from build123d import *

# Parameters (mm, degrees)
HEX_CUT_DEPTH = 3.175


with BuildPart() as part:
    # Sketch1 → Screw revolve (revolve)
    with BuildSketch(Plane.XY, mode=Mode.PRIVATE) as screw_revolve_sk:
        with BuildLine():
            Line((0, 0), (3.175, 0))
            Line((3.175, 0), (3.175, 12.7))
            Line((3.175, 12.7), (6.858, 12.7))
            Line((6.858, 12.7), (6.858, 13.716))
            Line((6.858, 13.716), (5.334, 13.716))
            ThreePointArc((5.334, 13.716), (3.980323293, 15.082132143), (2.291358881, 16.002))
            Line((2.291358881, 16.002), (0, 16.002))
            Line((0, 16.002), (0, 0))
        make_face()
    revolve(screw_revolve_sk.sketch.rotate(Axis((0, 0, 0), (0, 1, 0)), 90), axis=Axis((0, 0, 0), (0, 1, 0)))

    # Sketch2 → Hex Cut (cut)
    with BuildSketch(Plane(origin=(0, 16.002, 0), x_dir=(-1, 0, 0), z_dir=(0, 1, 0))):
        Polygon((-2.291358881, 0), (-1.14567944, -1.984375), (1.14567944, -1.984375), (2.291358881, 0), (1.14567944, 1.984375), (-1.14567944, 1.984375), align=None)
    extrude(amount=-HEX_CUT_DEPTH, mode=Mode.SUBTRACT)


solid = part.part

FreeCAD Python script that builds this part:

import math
import FreeCAD as App
import Part
import Sketcher

V = App.Vector
Q = App.Units.Quantity

doc = App.newDocument("Part")
body = doc.addObject("PartDesign::Body", "Body")

# Sketch on XY plane
sketch1 = body.newObject("Sketcher::SketchObject", "Sketch")
sketch1.AttachmentSupport = (doc.getObject("XY_Plane"), [""])
sketch1.MapMode = "FlatFace"
sketch1.addGeometry(Part.LineSegment(V(0, 0, 0), V(3.175, 0, 0)), False)
sketch1.addGeometry(Part.LineSegment(V(3.175, 0, 0), V(3.175, 12.7, 0)), False)
sketch1.addGeometry(Part.LineSegment(V(3.175, 12.7, 0), V(6.858, 12.7, 0)), False)
sketch1.addGeometry(Part.LineSegment(V(6.858, 12.7, 0), V(6.858, 13.716, 0)), False)
sketch1.addGeometry(Part.LineSegment(V(6.858, 13.716, 0), V(5.334, 13.716, 0)), False)
sketch1.addGeometry(Part.ArcOfCircle(Part.Circle(V(0, 9.784365, 0), V(0, 0, 1), 6.62641), math.radians(36.393534), math.radians(69.769856)), False)
sketch1.addGeometry(Part.LineSegment(V(2.291359, 16.002, 0), V(0, 16.002, 0)), False)
sketch1.addGeometry(Part.LineSegment(V(0, 16.002, 0), V(0, 0, 0)), False)
sketch1.addConstraint(Sketcher.Constraint("Coincident", 0, 2, 1, 1))
sketch1.addConstraint(Sketcher.Constraint("Coincident", 1, 2, 2, 1))
sketch1.addConstraint(Sketcher.Constraint("Coincident", 2, 2, 3, 1))
sketch1.addConstraint(Sketcher.Constraint("Coincident", 3, 2, 4, 1))
sketch1.addConstraint(Sketcher.Constraint("Coincident", 4, 2, 5, 1))
sketch1.addConstraint(Sketcher.Constraint("Coincident", 5, 2, 6, 1))
sketch1.addConstraint(Sketcher.Constraint("Coincident", 6, 2, 7, 1))
sketch1.addConstraint(Sketcher.Constraint("Coincident", 7, 2, 0, 1))
sketch1.addConstraint(Sketcher.Constraint("Horizontal", 0))
sketch1.addConstraint(Sketcher.Constraint("Vertical", 1))
sketch1.addConstraint(Sketcher.Constraint("Horizontal", 2))
sketch1.addConstraint(Sketcher.Constraint("Vertical", 3))
sketch1.addConstraint(Sketcher.Constraint("Horizontal", 4))
sketch1.addConstraint(Sketcher.Constraint("Horizontal", 6))
sketch1.addConstraint(Sketcher.Constraint("Vertical", 7))
sketch1.addConstraint(Sketcher.Constraint("Coincident", 7, 2, -1, 1))
sketch1.addConstraint(Sketcher.Constraint("PointOnObject", 5, 3, -2))
sketch1.addConstraint(Sketcher.Constraint("DistanceY", 1, 1, 1, 2, Q("0.5 in")))
sketch1.addConstraint(Sketcher.Constraint("DistanceX", 4, 2, 4, 1, Q("0.06 in")))
sketch1.addConstraint(Sketcher.Constraint("DistanceY", 3, 1, 3, 2, Q("0.04 in")))
sketch1.addConstraint(Sketcher.Constraint("DistanceY", 7, 2, 7, 1, Q("0.63 in")))
sketch1.addConstraint(Sketcher.Constraint("DistanceX", 0, 1, 0, 2, Q("0.125 in")))
sketch1.addConstraint(Sketcher.Constraint("DistanceX", 2, 1, 2, 2, Q("0.145 in")))
sketch1.addConstraint(Sketcher.Constraint("Radius", 5, Q("6.62641 mm")))
revolution = body.newObject("PartDesign::Revolution", "Revolution")
revolution.Profile = sketch1
revolution.ReferenceAxis = (sketch1, ["V_Axis"])
revolution.Angle = 360

# Sketch on XZ plane
sketch2 = body.newObject("Sketcher::SketchObject", "Sketch001")
sketch2.AttachmentSupport = (doc.getObject("XZ_Plane"), [""])
sketch2.MapMode = "FlatFace"
sketch2.AttachmentOffset = App.Placement(V(0, 0, -0.63 * 25.4), App.Rotation())
sketch2.addGeometry(Part.LineSegment(V(2.291359, 0, 0), V(1.145679, -1.984375, 0)), False)
sketch2.addGeometry(Part.LineSegment(V(1.145679, -1.984375, 0), V(-1.145679, -1.984375, 0)), False)
sketch2.addGeometry(Part.LineSegment(V(-1.145679, -1.984375, 0), V(-2.291359, 0, 0)), False)
sketch2.addGeometry(Part.LineSegment(V(-2.291359, 0, 0), V(-1.145679, 1.984375, 0)), False)
sketch2.addGeometry(Part.LineSegment(V(-1.145679, 1.984375, 0), V(1.145679, 1.984375, 0)), False)
sketch2.addGeometry(Part.LineSegment(V(1.145679, 1.984375, 0), V(2.291359, 0, 0)), False)
sketch2.addConstraint(Sketcher.Constraint("Coincident", 0, 2, 1, 1))
sketch2.addConstraint(Sketcher.Constraint("Coincident", 1, 2, 2, 1))
sketch2.addConstraint(Sketcher.Constraint("Coincident", 2, 2, 3, 1))
sketch2.addConstraint(Sketcher.Constraint("Coincident", 3, 2, 4, 1))
sketch2.addConstraint(Sketcher.Constraint("Coincident", 4, 2, 5, 1))
sketch2.addConstraint(Sketcher.Constraint("Coincident", 5, 2, 0, 1))
sketch2.addConstraint(Sketcher.Constraint("Horizontal", 1))
sketch2.addConstraint(Sketcher.Constraint("Horizontal", 4))
sketch2.addConstraint(Sketcher.Constraint("Symmetric", 0, 2, 3, 2, -1, 1))
sketch2.addConstraint(Sketcher.Constraint("Symmetric", 2, 2, 5, 2, -1, 1))
sketch2.addConstraint(Sketcher.Constraint("PointOnObject", 2, 2, -1))
sketch2.addConstraint(Sketcher.Constraint("Parallel", 2, 5))
sketch2.addConstraint(Sketcher.Constraint("Vertical", 1, 2, 3, 2))
sketch2.addConstraint(Sketcher.Constraint("Angle", 0, Q("-120 deg")))
sketch2.addConstraint(Sketcher.Constraint("DistanceY", 0, 2, -1, 1, Q("0.078125 in")))
sketch2.addConstraint(Sketcher.Constraint("DistanceX", 1, 2, 1, 1, Q("2.291359 mm")))
pocket1 = body.newObject("PartDesign::Pocket", "Pocket")
pocket1.Profile = sketch2
pocket1.Length = Q("0.125 in")
pocket1.Reversed = True

doc.recompute()
